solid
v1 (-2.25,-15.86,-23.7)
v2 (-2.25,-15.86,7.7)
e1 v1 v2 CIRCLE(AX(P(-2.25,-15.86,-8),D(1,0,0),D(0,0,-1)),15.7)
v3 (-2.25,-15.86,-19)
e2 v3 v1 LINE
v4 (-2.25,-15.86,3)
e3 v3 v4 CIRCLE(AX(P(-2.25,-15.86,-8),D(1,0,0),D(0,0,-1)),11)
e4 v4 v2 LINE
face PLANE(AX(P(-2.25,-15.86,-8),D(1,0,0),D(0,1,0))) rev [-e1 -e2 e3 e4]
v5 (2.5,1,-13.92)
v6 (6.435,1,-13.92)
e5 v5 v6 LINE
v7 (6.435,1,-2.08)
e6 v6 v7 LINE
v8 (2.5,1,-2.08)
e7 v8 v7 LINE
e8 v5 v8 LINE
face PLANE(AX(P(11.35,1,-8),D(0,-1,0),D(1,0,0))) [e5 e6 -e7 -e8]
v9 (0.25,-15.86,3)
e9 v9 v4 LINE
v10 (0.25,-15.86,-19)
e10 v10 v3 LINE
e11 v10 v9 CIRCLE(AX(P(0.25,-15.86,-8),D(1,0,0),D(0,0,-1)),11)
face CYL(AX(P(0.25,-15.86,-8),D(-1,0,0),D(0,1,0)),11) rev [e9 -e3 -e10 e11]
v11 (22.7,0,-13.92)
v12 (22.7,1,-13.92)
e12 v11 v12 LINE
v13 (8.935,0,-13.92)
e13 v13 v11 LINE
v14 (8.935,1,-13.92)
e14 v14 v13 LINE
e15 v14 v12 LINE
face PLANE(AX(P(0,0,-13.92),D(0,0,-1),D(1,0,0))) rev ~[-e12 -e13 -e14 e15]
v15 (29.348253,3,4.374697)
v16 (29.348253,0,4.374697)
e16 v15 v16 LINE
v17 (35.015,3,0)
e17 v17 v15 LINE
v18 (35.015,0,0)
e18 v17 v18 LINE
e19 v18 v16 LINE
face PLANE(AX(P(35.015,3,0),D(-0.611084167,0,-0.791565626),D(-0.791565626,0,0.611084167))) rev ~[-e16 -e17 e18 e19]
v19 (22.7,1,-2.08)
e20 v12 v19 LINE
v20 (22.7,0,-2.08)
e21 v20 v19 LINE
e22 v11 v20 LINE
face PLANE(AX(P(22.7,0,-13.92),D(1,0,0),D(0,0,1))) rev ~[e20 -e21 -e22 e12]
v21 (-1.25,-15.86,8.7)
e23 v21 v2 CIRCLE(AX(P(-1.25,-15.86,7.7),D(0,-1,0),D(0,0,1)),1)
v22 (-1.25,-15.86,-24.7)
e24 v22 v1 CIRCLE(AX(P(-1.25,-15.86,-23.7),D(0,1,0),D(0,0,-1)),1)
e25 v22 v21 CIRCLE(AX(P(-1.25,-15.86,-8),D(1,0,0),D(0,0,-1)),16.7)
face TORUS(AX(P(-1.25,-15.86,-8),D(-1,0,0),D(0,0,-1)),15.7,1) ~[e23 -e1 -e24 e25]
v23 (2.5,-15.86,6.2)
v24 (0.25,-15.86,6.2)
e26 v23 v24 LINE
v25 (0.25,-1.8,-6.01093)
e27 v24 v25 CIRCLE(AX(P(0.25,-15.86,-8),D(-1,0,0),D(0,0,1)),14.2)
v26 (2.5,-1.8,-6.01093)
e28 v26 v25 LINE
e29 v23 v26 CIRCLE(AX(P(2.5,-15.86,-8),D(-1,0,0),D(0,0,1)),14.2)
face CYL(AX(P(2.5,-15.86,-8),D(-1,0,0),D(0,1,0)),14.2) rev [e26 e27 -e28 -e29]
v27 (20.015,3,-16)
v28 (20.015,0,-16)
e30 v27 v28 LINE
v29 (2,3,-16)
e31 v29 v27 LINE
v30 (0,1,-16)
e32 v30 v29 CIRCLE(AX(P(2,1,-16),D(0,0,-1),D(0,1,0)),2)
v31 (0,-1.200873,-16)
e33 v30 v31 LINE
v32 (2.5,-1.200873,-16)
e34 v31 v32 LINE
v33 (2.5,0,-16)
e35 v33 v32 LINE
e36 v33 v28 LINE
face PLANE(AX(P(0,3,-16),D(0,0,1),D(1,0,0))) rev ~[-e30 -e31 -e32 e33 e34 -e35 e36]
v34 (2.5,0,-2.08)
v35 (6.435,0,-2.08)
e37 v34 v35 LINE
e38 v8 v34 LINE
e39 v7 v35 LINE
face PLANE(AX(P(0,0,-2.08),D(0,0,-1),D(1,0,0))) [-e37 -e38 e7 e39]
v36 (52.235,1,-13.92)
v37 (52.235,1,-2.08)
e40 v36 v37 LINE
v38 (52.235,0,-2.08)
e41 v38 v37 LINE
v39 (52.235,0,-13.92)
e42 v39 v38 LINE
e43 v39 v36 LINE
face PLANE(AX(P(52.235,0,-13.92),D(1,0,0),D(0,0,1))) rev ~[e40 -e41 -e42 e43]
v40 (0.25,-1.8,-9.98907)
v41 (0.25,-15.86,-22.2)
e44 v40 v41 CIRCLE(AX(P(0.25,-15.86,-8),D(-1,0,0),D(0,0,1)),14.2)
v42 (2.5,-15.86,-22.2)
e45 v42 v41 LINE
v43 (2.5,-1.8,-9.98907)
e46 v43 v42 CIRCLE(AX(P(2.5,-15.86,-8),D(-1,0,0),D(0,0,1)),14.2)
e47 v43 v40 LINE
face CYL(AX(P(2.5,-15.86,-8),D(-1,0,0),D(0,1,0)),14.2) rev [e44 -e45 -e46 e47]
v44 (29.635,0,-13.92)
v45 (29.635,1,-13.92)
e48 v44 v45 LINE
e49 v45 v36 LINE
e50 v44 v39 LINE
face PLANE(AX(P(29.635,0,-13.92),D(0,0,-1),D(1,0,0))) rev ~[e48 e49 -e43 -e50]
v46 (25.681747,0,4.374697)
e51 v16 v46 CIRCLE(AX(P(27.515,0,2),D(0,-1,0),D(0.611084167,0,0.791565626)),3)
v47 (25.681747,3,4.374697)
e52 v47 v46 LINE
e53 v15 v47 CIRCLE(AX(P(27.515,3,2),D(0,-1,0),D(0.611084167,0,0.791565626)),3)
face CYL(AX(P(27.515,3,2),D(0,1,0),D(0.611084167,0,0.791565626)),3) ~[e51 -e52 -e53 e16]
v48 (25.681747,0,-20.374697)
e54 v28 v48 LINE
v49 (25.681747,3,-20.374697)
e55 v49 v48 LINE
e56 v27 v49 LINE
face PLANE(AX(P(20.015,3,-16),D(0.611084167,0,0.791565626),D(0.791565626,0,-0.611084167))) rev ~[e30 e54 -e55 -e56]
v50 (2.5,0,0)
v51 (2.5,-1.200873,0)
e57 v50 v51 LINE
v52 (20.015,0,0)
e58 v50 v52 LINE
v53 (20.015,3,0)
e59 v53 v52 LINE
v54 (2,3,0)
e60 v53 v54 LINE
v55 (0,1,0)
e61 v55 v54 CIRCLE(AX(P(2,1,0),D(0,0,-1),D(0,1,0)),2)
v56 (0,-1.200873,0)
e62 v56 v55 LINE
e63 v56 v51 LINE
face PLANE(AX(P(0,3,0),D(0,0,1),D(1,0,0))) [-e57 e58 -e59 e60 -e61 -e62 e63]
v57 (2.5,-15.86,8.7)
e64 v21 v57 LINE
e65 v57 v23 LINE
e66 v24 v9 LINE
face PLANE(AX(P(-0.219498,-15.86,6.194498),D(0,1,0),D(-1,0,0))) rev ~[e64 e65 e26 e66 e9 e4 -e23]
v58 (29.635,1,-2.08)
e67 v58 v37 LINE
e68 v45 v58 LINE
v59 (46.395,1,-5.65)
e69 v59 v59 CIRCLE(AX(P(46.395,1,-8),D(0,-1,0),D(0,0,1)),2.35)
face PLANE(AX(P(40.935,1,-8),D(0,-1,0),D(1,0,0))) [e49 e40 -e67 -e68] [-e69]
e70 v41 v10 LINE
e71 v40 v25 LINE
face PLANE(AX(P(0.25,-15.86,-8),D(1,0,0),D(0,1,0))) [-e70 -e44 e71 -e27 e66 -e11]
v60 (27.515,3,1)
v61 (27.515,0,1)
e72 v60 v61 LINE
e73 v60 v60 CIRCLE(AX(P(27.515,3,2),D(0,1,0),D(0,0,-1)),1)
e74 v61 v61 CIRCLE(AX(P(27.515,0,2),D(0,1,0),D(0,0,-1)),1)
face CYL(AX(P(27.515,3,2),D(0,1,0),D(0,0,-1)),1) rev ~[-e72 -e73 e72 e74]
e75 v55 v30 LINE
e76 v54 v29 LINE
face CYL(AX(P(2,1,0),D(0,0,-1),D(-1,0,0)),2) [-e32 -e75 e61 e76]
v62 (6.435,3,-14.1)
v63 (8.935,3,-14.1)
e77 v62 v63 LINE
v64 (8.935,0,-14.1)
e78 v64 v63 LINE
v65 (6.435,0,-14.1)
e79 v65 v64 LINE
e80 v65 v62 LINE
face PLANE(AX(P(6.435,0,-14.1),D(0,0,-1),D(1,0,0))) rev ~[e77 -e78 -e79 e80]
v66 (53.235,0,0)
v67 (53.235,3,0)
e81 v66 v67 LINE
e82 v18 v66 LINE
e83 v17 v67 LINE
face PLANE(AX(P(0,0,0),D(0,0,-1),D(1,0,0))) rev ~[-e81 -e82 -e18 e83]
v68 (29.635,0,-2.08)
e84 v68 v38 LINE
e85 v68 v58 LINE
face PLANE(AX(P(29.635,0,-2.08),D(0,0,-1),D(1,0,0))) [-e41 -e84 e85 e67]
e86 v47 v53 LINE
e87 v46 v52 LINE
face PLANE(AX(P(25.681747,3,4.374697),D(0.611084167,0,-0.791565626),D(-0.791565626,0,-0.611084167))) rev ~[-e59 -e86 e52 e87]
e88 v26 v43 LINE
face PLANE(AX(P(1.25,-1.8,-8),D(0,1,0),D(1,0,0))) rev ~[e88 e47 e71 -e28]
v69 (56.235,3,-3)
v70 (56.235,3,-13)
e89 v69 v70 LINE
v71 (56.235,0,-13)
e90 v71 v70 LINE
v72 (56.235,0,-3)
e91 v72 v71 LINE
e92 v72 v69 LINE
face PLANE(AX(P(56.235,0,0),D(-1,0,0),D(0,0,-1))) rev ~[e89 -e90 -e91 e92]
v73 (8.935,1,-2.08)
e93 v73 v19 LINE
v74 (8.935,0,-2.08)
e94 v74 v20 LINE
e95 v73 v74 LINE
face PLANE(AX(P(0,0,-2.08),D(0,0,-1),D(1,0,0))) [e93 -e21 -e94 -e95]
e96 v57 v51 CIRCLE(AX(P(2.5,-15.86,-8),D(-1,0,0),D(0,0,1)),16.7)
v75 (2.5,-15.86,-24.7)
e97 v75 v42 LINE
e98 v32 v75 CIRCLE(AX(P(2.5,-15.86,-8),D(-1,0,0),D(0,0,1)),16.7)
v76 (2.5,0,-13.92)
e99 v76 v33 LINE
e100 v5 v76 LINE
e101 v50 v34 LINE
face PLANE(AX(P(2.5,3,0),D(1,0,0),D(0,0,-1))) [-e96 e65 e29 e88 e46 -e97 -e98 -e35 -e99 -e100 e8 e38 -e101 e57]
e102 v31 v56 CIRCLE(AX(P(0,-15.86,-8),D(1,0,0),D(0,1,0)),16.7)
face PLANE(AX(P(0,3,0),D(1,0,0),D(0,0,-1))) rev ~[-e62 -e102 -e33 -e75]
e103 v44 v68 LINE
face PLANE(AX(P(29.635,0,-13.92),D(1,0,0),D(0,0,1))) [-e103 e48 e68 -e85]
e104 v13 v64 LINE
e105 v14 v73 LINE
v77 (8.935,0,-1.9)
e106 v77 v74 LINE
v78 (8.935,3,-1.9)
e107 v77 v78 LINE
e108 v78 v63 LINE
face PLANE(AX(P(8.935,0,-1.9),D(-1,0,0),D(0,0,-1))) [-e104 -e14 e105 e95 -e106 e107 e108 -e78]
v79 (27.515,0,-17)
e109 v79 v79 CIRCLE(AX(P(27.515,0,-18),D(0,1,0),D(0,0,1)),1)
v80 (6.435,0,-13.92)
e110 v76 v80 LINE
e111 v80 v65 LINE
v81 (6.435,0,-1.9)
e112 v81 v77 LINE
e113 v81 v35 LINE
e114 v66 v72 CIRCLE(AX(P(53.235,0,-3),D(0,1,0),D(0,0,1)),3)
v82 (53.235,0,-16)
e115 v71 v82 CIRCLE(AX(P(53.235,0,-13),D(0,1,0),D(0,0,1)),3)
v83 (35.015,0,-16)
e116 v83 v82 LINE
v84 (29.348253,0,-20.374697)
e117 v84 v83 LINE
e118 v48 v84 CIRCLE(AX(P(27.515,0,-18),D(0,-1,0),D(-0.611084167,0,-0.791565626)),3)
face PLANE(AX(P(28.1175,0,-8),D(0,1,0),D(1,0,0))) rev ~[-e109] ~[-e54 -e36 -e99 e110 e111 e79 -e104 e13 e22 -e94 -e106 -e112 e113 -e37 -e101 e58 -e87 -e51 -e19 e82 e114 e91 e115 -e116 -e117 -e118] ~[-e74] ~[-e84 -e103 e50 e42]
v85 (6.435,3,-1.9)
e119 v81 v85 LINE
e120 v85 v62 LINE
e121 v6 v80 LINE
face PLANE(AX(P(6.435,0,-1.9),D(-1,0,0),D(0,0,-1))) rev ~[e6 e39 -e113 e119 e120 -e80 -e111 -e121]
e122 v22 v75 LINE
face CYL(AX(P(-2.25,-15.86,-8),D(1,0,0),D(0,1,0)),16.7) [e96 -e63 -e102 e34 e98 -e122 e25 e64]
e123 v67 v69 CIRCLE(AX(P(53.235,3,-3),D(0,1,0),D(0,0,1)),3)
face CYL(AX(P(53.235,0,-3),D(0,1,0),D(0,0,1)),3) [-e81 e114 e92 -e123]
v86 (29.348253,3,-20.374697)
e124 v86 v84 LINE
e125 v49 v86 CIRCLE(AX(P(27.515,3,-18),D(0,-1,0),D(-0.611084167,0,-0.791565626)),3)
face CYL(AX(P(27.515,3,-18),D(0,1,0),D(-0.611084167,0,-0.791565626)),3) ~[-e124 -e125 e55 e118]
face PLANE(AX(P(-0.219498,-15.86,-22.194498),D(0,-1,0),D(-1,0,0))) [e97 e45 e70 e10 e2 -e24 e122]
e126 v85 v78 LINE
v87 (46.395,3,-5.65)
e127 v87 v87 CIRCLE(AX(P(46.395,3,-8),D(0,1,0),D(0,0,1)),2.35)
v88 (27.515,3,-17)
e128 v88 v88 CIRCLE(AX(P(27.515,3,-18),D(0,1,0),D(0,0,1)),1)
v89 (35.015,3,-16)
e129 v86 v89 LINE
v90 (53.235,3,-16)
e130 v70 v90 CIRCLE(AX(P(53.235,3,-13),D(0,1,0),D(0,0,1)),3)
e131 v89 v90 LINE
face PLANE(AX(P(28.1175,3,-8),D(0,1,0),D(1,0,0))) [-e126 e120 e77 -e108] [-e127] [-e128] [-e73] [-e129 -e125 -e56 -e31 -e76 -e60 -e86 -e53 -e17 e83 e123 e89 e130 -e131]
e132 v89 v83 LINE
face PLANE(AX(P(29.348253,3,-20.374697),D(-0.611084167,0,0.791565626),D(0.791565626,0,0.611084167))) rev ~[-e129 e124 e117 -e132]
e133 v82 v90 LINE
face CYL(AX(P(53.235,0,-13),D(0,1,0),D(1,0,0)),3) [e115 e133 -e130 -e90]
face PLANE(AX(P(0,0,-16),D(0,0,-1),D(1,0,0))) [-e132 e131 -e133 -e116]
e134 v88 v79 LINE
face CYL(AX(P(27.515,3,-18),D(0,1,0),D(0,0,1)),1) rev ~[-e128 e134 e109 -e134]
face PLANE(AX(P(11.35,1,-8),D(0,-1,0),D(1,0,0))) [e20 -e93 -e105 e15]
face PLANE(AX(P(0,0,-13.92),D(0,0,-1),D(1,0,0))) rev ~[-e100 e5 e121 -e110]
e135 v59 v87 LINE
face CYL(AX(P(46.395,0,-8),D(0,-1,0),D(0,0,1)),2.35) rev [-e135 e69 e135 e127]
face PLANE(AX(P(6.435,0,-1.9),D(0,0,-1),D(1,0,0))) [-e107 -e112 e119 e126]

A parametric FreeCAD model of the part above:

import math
import FreeCAD as App
import Part
import Sketcher

V = App.Vector


def edges_at(feature, points):
    """Names of the edges that pass closest to the given points."""
    edges = feature.Shape.Edges
    near = lambda p: min(range(len(edges)), key=lambda i: edges[i].distToShape(Part.Vertex(*p))[0])
    return sorted({f"Edge{near(p) + 1}" for p in points})

doc = App.newDocument("Part")
body = doc.addObject("PartDesign::Body", "Body")

sketch1 = body.newObject("Sketcher::SketchObject", "Sketch")
sketch1.AttachmentSupport = (doc.getObject("XZ_Plane"), [""])
sketch1.MapMode = "FlatFace"
sketch1.addGeometry([
    Part.LineSegment(V(0, -16, 0), V(0, 0, 0)),
    Part.LineSegment(V(0, 0, 0), V(56.235, 0, 0)),
    Part.LineSegment(V(56.235, 0, 0), V(56.235, -16, 0)),
    Part.LineSegment(V(56.235, -16, 0), V(0, -16, 0)),
    Part.LineSegment(V(8.935, -1.9, 0), V(6.435, -1.9, 0)),
    Part.LineSegment(V(6.435, -1.9, 0), V(6.435, -14.1, 0)),
    Part.LineSegment(V(6.435, -14.1, 0), V(8.935, -14.1, 0)),
    Part.LineSegment(V(8.935, -14.1, 0), V(8.935, -1.9, 0)),
    Part.Circle(V(46.395, -8, 0), V(0, 0, 1), 2.35),
], False)
sketch1.addConstraint([
    Sketcher.Constraint("Coincident", 0, 2, 1, 1),
    Sketcher.Constraint("Coincident", 1, 2, 2, 1),
    Sketcher.Constraint("Coincident", 2, 2, 3, 1),
    Sketcher.Constraint("Coincident", 3, 2, 0, 1),
    Sketcher.Constraint("Coincident", 4, 2, 5, 1),
    Sketcher.Constraint("Coincident", 5, 2, 6, 1),
    Sketcher.Constraint("Coincident", 6, 2, 7, 1),
    Sketcher.Constraint("Coincident", 7, 2, 4, 1),
    Sketcher.Constraint("Vertical", 0),
    Sketcher.Constraint("Horizontal", 1),
    Sketcher.Constraint("Vertical", 2),
    Sketcher.Constraint("Horizontal", 3),
    Sketcher.Constraint("Horizontal", 4),
    Sketcher.Constraint("Vertical", 5),
    Sketcher.Constraint("Horizontal", 6),
    Sketcher.Constraint("Vertical", 7),
    Sketcher.Constraint("Coincident", 0, 2, -1, 1),
    Sketcher.Constraint("Diameter", 8, 4.7),
    Sketcher.Constraint("DistanceY", 0, 1, 0, 2, 16.0),
    Sketcher.Constraint("DistanceX", 4, 2, 4, 1, 2.5),
    Sketcher.Constraint("DistanceY", 5, 2, 5, 1, 12.2),
    Sketcher.Constraint("DistanceY", 8, 3, -1, 1, 8.0),
    Sketcher.Constraint("DistanceY", 4, 2, -1, 1, 1.9),
    Sketcher.Constraint("DistanceX", 4, 2, 1, 2, 49.8),
    Sketcher.Constraint("DistanceX", 1, 1, 1, 2, 56.235),
    Sketcher.Constraint("DistanceX", 8, 3, 1, 2, 9.84),
])
pad1 = body.newObject("PartDesign::Pad", "Pad")
pad1.Profile = sketch1
pad1.Length = 3
pad1.Reversed = True

sketch2 = body.newObject("Sketcher::SketchObject", "Sketch001")
sketch2.AttachmentSupport = (doc.getObject("XZ_Plane"), [""])
sketch2.MapMode = "FlatFace"
sketch2.addGeometry([
    Part.LineSegment(V(0, -2.08, 0), V(0, -13.92, 0)),
    Part.LineSegment(V(0, -13.92, 0), V(22.7, -13.92, 0)),
    Part.LineSegment(V(22.7, -13.92, 0), V(22.7, -2.08, 0)),
    Part.LineSegment(V(22.7, -2.08, 0), V(0, -2.08, 0)),
    Part.LineSegment(V(29.635, -2.08, 0), V(29.635, -13.92, 0)),
    Part.LineSegment(V(29.635, -13.92, 0), V(52.235, -13.92, 0)),
    Part.LineSegment(V(52.235, -13.92, 0), V(52.235, -2.08, 0)),
    Part.LineSegment(V(52.235, -2.08, 0), V(29.635, -2.08, 0)),
], False)
sketch2.addConstraint([
    Sketcher.Constraint("Coincident", 0, 2, 1, 1),
    Sketcher.Constraint("Coincident", 1, 2, 2, 1),
    Sketcher.Constraint("Coincident", 2, 2, 3, 1),
    Sketcher.Constraint("Coincident", 3, 2, 0, 1),
    Sketcher.Constraint("Coincident", 4, 2, 5, 1),
    Sketcher.Constraint("Coincident", 5, 2, 6, 1),
    Sketcher.Constraint("Coincident", 6, 2, 7, 1),
    Sketcher.Constraint("Coincident", 7, 2, 4, 1),
    Sketcher.Constraint("Vertical", 0),
    Sketcher.Constraint("Horizontal", 1),
    Sketcher.Constraint("Vertical", 2),
    Sketcher.Constraint("Horizontal", 3),
    Sketcher.Constraint("Vertical", 4),
    Sketcher.Constraint("Horizontal", 5),
    Sketcher.Constraint("Vertical", 6),
    Sketcher.Constraint("Horizontal", 7),
    Sketcher.Constraint("PointOnObject", 0, 2, -2),
    Sketcher.Constraint("Horizontal", 1, 2, 4, 2),
    Sketcher.Constraint("Horizontal", 3, 2, 6, 2),
    Sketcher.Constraint("DistanceX", 1, 1, 1, 2, 22.7),
    Sketcher.Constraint("DistanceX", 5, 1, 5, 2, 22.6),
    Sketcher.Constraint("DistanceY", 0, 2, 0, 1, 11.84),
    Sketcher.Constraint("DistanceY", 0, 2, -1, 1, 13.92),
    Sketcher.Constraint("DistanceX", -1, 1, 4, 2, 29.635),
])
pocket1 = body.newObject("PartDesign::Pocket", "Pocket")
pocket1.Profile = sketch2
pocket1.Length = 1

sketch3 = body.newObject("Sketcher::SketchObject", "Sketch002")
sketch3.AttachmentSupport = (doc.getObject("XZ_Plane"), [""])
sketch3.MapMode = "FlatFace"
sketch3.AttachmentOffset = App.Placement(V(0, 0, -3), App.Rotation())
sketch3.addGeometry([
    Part.LineSegment(V(25.681747, -20.374697, 0), V(20.015, -16, 0)),
    Part.LineSegment(V(20.015, -16, 0), V(35.015, -16, 0)),
    Part.LineSegment(V(35.015, -16, 0), V(29.348253, -20.374697, 0)),
    Part.ArcOfCircle(Part.Circle(V(27.515, -18, 0), V(0, 0, 1), 3), math.radians(-127.667937), math.radians(-52.332063)),
    Part.Circle(V(27.515, -18, 0), V(0, 0, 1), 1),
    Part.LineSegment(V(29.348253, 4.374697, 0), V(35.015, 0, 0)),
    Part.LineSegment(V(35.015, 0, 0), V(20.015, 0, 0)),
    Part.LineSegment(V(20.015, 0, 0), V(25.681747, 4.374697, 0)),
    Part.ArcOfCircle(Part.Circle(V(27.515, 2, 0), V(0, 0, 1), 3), math.radians(52.332063), math.radians(127.667937)),
    Part.Circle(V(27.515, 2, 0), V(0, 0, 1), 1),
], False)
sketch3.addConstraint([
    Sketcher.Constraint("Coincident", 0, 2, 1, 1),
    Sketcher.Constraint("Coincident", 1, 2, 2, 1),
    Sketcher.Constraint("Tangent", 2, 2, 3, 2),
    Sketcher.Constraint("Tangent", 3, 1, 0, 1),
    Sketcher.Constraint("Coincident", 5, 2, 6, 1),
    Sketcher.Constraint("Coincident", 6, 2, 7, 1),
    Sketcher.Constraint("Tangent", 7, 2, 8, 2),
    Sketcher.Constraint("Tangent", 8, 1, 5, 1),
    Sketcher.Constraint("Horizontal", 1),
    Sketcher.Constraint("Horizontal", 6),
    Sketcher.Constraint("Coincident", 4, 3, 3, 3),
    Sketcher.Constraint("Coincident", 9, 3, 8, 3),
    Sketcher.Constraint("Equal", 3, 8),
    Sketcher.Constraint("Equal", 4, 9),
    Sketcher.Constraint("PointOnObject", 5, 2, -1),
    Sketcher.Constraint("Parallel", 0, 5),
    Sketcher.Constraint("Parallel", 2, 7),
    Sketcher.Constraint("Horizontal", 2, 2, 3, 1),
    Sketcher.Constraint("Vertical", 4, 3, 8, 3),
    Sketcher.Constraint("Vertical", 1, 2, 5, 2),
    Sketcher.Constraint("Diameter", 4, 2.0),
    Sketcher.Constraint("Radius", 3, 3.0),
    Sketcher.Constraint("DistanceX", 1, 1, 1, 2, 15.0),
    Sketcher.Constraint("DistanceY", 3, 3, -1, 1, 18.0),
    Sketcher.Constraint("DistanceY", -1, 1, 8, 3, 2.0),
    Sketcher.Constraint("DistanceX", -1, 1, 3, 3, 27.515),
])
pad2 = body.newObject("PartDesign::Pad", "Pad001")
pad2.Profile = sketch3
pad2.Length = 3
body2 = doc.addObject("PartDesign::Body", "Body001")

sketch4 = body2.newObject("Sketcher::SketchObject", "Sketch003")
sketch4.AttachmentSupport = (doc.getObject("XY_Plane001"), [""])
sketch4.MapMode = "FlatFace"
sketch4.AttachmentOffset = App.Placement(V(0, 0, -8), App.Rotation())
sketch4.addGeometry([
    Part.LineSegment(V(2.5, 0.84, 0), V(-2.25, 0.84, 0)),
    Part.LineSegment(V(-2.25, 0.84, 0), V(-2.25, -4.86, 0)),
    Part.LineSegment(V(-2.25, -4.86, 0), V(0.25, -4.86, 0)),
    Part.LineSegment(V(0.25, -4.86, 0), V(0.25, -1.66, 0)),
    Part.LineSegment(V(0.25, -1.66, 0), V(2.5, -1.66, 0)),
    Part.LineSegment(V(2.5, -1.66, 0), V(2.5, 0.84, 0)),
], False)
sketch4.addGeometry(Part.LineSegment(V(2.5, -15.86, 0), V(-2.25, -15.86, 0)), True)
sketch4.addConstraint([
    Sketcher.Constraint("Coincident", 0, 2, 1, 1),
    Sketcher.Constraint("Coincident", 1, 2, 2, 1),
    Sketcher.Constraint("Coincident", 2, 2, 3, 1),
    Sketcher.Constraint("Coincident", 3, 2, 4, 1),
    Sketcher.Constraint("Coincident", 4, 2, 5, 1),
    Sketcher.Constraint("Coincident", 5, 2, 0, 1),
    Sketcher.Constraint("Horizontal", 0),
    Sketcher.Constraint("Vertical", 1),
    Sketcher.Constraint("Horizontal", 2),
    Sketcher.Constraint("Vertical", 3),
    Sketcher.Constraint("Horizontal", 4),
    Sketcher.Constraint("Vertical", 5),
    Sketcher.Constraint("Horizontal", 6),
    Sketcher.Constraint("Vertical", 5, 2, 6, 1),
    Sketcher.Constraint("Vertical", 1, 2, 6, 2),
    Sketcher.Constraint("Equal", 2, 5),
    Sketcher.Constraint("DistanceX", 2, 1, 2, 2, 2.5),
    Sketcher.Constraint("DistanceY", 1, 2, 1, 1, 5.7),
    Sketcher.Constraint("DistanceY", 6, 1, 2, 2, 11.0),
    Sketcher.Constraint("DistanceX", 0, 2, 0, 1, 4.75),
    Sketcher.Constraint("DistanceX", -1, 1, 4, 2, 2.5),
    Sketcher.Constraint("DistanceY", -1, 1, 0, 2, 0.84),
])
revolution = body2.newObject("PartDesign::Revolution", "Revolution")
revolution.Profile = sketch4
revolution.ReferenceAxis = (sketch4, ["Axis0"])
revolution.Angle = 90

sketch5 = body2.newObject("Sketcher::SketchObject", "Sketch004")
sketch5.AttachmentSupport = (doc.getObject("XY_Plane001"), [""])
sketch5.MapMode = "FlatFace"
sketch5.AttachmentOffset = App.Placement(V(0, 0, -8), App.Rotation())
sketch5.addGeometry([
    Part.LineSegment(V(2.5, 0.84, 0), V(-2.25, 0.84, 0)),
    Part.LineSegment(V(-2.25, 0.84, 0), V(-2.25, -4.86, 0)),
    Part.LineSegment(V(-2.25, -4.86, 0), V(0.25, -4.86, 0)),
    Part.LineSegment(V(0.25, -4.86, 0), V(0.25, -1.66, 0)),
    Part.LineSegment(V(0.25, -1.66, 0), V(2.5, -1.66, 0)),
    Part.LineSegment(V(2.5, -1.66, 0), V(2.5, 0.84, 0)),
], False)
sketch5.addGeometry(Part.LineSegment(V(-2.25, -15.86, 0), V(2.5, -15.86, 0)), True)
sketch5.addConstraint([
    Sketcher.Constraint("Coincident", 0, 2, 1, 1),
    Sketcher.Constraint("Coincident", 1, 2, 2, 1),
    Sketcher.Constraint("Coincident", 2, 2, 3, 1),
    Sketcher.Constraint("Coincident", 3, 2, 4, 1),
    Sketcher.Constraint("Coincident", 4, 2, 5, 1),
    Sketcher.Constraint("Coincident", 5, 2, 0, 1),
    Sketcher.Constraint("Horizontal", 0),
    Sketcher.Constraint("Vertical", 1),
    Sketcher.Constraint("Horizontal", 2),
    Sketcher.Constraint("Vertical", 3),
    Sketcher.Constraint("Horizontal", 4),
    Sketcher.Constraint("Vertical", 5),
    Sketcher.Constraint("Horizontal", 6),
    Sketcher.Constraint("Vertical", 1, 2, 6, 1),
    Sketcher.Constraint("Vertical", 5, 2, 6, 2),
    Sketcher.Constraint("Equal", 2, 5),
    Sketcher.Constraint("DistanceX", 2, 1, 2, 2, 2.5),
    Sketcher.Constraint("DistanceY", 1, 2, 1, 1, 5.7),
    Sketcher.Constraint("DistanceY", 6, 1, 1, 2, 11.0),
    Sketcher.Constraint("DistanceX", 0, 2, 0, 1, 4.75),
    Sketcher.Constraint("DistanceX", -1, 1, 4, 2, 2.5),
    Sketcher.Constraint("DistanceY", -1, 1, 0, 2, 0.84),
])
revolution2 = body2.newObject("PartDesign::Revolution", "Revolution001")
revolution2.Profile = sketch5
revolution2.ReferenceAxis = (sketch5, ["Axis0"])
revolution2.Angle = 90
body.AllowCompound = True
doc.recompute()

boolean = body.newObject("PartDesign::Boolean", "Boolean")
boolean.Type = "Fuse"
boolean.addObjects([body2])

sketch6 = body.newObject("Sketcher::SketchObject", "Sketch005")
sketch6.AttachmentSupport = (doc.getObject("XZ_Plane"), [""])
sketch6.MapMode = "FlatFace"
sketch6.AttachmentOffset = App.Placement(V(0, 0, -3), App.Rotation())
sketch6.addGeometry([
    Part.LineSegment(V(0, -16, 0), V(0, 0, 0)),
    Part.LineSegment(V(0, 0, 0), V(2.5, 0, 0)),
    Part.LineSegment(V(2.5, 0, 0), V(2.5, -16, 0)),
    Part.LineSegment(V(2.5, -16, 0), V(0, -16, 0)),
], False)
sketch6.addConstraint([
    Sketcher.Constraint("Coincident", 0, 2, 1, 1),
    Sketcher.Constraint("Coincident", 1, 2, 2, 1),
    Sketcher.Constraint("Coincident", 2, 2, 3, 1),
    Sketcher.Constraint("Coincident", 3, 2, 0, 1),
    Sketcher.Constraint("Vertical", 0),
    Sketcher.Constraint("Horizontal", 1),
    Sketcher.Constraint("Vertical", 2),
    Sketcher.Constraint("Horizontal", 3),
    Sketcher.Constraint("Coincident", 0, 2, -1, 1),
    Sketcher.Constraint("DistanceY", 0, 1, 0, 2, 16.0),
    Sketcher.Constraint("DistanceX", 1, 1, 1, 2, 2.5),
])
pad3 = body.newObject("PartDesign::Pad", "Pad002")
pad3.Profile = sketch6
pad3.Length = 4.8
doc.recompute()

fillet = body.newObject("PartDesign::Fillet", "Fillet")
fillet.Base = (pad3, edges_at(pad3, [(0, 3, -8)]))
fillet.Radius = 2
doc.recompute()

fillet2 = body.newObject("PartDesign::Fillet", "Fillet001")
fillet2.Base = (fillet, edges_at(fillet, [(56.235, 1.5, -16), (56.235, 1.5, 0)]))
fillet2.Radius = 3
doc.recompute()

fillet3 = body.newObject("PartDesign::Fillet", "Fillet002")
fillet3.Base = (fillet2, edges_at(fillet2, [(-2.25, 0.84, -8)]))
fillet3.Radius = 1

doc.recompute()
